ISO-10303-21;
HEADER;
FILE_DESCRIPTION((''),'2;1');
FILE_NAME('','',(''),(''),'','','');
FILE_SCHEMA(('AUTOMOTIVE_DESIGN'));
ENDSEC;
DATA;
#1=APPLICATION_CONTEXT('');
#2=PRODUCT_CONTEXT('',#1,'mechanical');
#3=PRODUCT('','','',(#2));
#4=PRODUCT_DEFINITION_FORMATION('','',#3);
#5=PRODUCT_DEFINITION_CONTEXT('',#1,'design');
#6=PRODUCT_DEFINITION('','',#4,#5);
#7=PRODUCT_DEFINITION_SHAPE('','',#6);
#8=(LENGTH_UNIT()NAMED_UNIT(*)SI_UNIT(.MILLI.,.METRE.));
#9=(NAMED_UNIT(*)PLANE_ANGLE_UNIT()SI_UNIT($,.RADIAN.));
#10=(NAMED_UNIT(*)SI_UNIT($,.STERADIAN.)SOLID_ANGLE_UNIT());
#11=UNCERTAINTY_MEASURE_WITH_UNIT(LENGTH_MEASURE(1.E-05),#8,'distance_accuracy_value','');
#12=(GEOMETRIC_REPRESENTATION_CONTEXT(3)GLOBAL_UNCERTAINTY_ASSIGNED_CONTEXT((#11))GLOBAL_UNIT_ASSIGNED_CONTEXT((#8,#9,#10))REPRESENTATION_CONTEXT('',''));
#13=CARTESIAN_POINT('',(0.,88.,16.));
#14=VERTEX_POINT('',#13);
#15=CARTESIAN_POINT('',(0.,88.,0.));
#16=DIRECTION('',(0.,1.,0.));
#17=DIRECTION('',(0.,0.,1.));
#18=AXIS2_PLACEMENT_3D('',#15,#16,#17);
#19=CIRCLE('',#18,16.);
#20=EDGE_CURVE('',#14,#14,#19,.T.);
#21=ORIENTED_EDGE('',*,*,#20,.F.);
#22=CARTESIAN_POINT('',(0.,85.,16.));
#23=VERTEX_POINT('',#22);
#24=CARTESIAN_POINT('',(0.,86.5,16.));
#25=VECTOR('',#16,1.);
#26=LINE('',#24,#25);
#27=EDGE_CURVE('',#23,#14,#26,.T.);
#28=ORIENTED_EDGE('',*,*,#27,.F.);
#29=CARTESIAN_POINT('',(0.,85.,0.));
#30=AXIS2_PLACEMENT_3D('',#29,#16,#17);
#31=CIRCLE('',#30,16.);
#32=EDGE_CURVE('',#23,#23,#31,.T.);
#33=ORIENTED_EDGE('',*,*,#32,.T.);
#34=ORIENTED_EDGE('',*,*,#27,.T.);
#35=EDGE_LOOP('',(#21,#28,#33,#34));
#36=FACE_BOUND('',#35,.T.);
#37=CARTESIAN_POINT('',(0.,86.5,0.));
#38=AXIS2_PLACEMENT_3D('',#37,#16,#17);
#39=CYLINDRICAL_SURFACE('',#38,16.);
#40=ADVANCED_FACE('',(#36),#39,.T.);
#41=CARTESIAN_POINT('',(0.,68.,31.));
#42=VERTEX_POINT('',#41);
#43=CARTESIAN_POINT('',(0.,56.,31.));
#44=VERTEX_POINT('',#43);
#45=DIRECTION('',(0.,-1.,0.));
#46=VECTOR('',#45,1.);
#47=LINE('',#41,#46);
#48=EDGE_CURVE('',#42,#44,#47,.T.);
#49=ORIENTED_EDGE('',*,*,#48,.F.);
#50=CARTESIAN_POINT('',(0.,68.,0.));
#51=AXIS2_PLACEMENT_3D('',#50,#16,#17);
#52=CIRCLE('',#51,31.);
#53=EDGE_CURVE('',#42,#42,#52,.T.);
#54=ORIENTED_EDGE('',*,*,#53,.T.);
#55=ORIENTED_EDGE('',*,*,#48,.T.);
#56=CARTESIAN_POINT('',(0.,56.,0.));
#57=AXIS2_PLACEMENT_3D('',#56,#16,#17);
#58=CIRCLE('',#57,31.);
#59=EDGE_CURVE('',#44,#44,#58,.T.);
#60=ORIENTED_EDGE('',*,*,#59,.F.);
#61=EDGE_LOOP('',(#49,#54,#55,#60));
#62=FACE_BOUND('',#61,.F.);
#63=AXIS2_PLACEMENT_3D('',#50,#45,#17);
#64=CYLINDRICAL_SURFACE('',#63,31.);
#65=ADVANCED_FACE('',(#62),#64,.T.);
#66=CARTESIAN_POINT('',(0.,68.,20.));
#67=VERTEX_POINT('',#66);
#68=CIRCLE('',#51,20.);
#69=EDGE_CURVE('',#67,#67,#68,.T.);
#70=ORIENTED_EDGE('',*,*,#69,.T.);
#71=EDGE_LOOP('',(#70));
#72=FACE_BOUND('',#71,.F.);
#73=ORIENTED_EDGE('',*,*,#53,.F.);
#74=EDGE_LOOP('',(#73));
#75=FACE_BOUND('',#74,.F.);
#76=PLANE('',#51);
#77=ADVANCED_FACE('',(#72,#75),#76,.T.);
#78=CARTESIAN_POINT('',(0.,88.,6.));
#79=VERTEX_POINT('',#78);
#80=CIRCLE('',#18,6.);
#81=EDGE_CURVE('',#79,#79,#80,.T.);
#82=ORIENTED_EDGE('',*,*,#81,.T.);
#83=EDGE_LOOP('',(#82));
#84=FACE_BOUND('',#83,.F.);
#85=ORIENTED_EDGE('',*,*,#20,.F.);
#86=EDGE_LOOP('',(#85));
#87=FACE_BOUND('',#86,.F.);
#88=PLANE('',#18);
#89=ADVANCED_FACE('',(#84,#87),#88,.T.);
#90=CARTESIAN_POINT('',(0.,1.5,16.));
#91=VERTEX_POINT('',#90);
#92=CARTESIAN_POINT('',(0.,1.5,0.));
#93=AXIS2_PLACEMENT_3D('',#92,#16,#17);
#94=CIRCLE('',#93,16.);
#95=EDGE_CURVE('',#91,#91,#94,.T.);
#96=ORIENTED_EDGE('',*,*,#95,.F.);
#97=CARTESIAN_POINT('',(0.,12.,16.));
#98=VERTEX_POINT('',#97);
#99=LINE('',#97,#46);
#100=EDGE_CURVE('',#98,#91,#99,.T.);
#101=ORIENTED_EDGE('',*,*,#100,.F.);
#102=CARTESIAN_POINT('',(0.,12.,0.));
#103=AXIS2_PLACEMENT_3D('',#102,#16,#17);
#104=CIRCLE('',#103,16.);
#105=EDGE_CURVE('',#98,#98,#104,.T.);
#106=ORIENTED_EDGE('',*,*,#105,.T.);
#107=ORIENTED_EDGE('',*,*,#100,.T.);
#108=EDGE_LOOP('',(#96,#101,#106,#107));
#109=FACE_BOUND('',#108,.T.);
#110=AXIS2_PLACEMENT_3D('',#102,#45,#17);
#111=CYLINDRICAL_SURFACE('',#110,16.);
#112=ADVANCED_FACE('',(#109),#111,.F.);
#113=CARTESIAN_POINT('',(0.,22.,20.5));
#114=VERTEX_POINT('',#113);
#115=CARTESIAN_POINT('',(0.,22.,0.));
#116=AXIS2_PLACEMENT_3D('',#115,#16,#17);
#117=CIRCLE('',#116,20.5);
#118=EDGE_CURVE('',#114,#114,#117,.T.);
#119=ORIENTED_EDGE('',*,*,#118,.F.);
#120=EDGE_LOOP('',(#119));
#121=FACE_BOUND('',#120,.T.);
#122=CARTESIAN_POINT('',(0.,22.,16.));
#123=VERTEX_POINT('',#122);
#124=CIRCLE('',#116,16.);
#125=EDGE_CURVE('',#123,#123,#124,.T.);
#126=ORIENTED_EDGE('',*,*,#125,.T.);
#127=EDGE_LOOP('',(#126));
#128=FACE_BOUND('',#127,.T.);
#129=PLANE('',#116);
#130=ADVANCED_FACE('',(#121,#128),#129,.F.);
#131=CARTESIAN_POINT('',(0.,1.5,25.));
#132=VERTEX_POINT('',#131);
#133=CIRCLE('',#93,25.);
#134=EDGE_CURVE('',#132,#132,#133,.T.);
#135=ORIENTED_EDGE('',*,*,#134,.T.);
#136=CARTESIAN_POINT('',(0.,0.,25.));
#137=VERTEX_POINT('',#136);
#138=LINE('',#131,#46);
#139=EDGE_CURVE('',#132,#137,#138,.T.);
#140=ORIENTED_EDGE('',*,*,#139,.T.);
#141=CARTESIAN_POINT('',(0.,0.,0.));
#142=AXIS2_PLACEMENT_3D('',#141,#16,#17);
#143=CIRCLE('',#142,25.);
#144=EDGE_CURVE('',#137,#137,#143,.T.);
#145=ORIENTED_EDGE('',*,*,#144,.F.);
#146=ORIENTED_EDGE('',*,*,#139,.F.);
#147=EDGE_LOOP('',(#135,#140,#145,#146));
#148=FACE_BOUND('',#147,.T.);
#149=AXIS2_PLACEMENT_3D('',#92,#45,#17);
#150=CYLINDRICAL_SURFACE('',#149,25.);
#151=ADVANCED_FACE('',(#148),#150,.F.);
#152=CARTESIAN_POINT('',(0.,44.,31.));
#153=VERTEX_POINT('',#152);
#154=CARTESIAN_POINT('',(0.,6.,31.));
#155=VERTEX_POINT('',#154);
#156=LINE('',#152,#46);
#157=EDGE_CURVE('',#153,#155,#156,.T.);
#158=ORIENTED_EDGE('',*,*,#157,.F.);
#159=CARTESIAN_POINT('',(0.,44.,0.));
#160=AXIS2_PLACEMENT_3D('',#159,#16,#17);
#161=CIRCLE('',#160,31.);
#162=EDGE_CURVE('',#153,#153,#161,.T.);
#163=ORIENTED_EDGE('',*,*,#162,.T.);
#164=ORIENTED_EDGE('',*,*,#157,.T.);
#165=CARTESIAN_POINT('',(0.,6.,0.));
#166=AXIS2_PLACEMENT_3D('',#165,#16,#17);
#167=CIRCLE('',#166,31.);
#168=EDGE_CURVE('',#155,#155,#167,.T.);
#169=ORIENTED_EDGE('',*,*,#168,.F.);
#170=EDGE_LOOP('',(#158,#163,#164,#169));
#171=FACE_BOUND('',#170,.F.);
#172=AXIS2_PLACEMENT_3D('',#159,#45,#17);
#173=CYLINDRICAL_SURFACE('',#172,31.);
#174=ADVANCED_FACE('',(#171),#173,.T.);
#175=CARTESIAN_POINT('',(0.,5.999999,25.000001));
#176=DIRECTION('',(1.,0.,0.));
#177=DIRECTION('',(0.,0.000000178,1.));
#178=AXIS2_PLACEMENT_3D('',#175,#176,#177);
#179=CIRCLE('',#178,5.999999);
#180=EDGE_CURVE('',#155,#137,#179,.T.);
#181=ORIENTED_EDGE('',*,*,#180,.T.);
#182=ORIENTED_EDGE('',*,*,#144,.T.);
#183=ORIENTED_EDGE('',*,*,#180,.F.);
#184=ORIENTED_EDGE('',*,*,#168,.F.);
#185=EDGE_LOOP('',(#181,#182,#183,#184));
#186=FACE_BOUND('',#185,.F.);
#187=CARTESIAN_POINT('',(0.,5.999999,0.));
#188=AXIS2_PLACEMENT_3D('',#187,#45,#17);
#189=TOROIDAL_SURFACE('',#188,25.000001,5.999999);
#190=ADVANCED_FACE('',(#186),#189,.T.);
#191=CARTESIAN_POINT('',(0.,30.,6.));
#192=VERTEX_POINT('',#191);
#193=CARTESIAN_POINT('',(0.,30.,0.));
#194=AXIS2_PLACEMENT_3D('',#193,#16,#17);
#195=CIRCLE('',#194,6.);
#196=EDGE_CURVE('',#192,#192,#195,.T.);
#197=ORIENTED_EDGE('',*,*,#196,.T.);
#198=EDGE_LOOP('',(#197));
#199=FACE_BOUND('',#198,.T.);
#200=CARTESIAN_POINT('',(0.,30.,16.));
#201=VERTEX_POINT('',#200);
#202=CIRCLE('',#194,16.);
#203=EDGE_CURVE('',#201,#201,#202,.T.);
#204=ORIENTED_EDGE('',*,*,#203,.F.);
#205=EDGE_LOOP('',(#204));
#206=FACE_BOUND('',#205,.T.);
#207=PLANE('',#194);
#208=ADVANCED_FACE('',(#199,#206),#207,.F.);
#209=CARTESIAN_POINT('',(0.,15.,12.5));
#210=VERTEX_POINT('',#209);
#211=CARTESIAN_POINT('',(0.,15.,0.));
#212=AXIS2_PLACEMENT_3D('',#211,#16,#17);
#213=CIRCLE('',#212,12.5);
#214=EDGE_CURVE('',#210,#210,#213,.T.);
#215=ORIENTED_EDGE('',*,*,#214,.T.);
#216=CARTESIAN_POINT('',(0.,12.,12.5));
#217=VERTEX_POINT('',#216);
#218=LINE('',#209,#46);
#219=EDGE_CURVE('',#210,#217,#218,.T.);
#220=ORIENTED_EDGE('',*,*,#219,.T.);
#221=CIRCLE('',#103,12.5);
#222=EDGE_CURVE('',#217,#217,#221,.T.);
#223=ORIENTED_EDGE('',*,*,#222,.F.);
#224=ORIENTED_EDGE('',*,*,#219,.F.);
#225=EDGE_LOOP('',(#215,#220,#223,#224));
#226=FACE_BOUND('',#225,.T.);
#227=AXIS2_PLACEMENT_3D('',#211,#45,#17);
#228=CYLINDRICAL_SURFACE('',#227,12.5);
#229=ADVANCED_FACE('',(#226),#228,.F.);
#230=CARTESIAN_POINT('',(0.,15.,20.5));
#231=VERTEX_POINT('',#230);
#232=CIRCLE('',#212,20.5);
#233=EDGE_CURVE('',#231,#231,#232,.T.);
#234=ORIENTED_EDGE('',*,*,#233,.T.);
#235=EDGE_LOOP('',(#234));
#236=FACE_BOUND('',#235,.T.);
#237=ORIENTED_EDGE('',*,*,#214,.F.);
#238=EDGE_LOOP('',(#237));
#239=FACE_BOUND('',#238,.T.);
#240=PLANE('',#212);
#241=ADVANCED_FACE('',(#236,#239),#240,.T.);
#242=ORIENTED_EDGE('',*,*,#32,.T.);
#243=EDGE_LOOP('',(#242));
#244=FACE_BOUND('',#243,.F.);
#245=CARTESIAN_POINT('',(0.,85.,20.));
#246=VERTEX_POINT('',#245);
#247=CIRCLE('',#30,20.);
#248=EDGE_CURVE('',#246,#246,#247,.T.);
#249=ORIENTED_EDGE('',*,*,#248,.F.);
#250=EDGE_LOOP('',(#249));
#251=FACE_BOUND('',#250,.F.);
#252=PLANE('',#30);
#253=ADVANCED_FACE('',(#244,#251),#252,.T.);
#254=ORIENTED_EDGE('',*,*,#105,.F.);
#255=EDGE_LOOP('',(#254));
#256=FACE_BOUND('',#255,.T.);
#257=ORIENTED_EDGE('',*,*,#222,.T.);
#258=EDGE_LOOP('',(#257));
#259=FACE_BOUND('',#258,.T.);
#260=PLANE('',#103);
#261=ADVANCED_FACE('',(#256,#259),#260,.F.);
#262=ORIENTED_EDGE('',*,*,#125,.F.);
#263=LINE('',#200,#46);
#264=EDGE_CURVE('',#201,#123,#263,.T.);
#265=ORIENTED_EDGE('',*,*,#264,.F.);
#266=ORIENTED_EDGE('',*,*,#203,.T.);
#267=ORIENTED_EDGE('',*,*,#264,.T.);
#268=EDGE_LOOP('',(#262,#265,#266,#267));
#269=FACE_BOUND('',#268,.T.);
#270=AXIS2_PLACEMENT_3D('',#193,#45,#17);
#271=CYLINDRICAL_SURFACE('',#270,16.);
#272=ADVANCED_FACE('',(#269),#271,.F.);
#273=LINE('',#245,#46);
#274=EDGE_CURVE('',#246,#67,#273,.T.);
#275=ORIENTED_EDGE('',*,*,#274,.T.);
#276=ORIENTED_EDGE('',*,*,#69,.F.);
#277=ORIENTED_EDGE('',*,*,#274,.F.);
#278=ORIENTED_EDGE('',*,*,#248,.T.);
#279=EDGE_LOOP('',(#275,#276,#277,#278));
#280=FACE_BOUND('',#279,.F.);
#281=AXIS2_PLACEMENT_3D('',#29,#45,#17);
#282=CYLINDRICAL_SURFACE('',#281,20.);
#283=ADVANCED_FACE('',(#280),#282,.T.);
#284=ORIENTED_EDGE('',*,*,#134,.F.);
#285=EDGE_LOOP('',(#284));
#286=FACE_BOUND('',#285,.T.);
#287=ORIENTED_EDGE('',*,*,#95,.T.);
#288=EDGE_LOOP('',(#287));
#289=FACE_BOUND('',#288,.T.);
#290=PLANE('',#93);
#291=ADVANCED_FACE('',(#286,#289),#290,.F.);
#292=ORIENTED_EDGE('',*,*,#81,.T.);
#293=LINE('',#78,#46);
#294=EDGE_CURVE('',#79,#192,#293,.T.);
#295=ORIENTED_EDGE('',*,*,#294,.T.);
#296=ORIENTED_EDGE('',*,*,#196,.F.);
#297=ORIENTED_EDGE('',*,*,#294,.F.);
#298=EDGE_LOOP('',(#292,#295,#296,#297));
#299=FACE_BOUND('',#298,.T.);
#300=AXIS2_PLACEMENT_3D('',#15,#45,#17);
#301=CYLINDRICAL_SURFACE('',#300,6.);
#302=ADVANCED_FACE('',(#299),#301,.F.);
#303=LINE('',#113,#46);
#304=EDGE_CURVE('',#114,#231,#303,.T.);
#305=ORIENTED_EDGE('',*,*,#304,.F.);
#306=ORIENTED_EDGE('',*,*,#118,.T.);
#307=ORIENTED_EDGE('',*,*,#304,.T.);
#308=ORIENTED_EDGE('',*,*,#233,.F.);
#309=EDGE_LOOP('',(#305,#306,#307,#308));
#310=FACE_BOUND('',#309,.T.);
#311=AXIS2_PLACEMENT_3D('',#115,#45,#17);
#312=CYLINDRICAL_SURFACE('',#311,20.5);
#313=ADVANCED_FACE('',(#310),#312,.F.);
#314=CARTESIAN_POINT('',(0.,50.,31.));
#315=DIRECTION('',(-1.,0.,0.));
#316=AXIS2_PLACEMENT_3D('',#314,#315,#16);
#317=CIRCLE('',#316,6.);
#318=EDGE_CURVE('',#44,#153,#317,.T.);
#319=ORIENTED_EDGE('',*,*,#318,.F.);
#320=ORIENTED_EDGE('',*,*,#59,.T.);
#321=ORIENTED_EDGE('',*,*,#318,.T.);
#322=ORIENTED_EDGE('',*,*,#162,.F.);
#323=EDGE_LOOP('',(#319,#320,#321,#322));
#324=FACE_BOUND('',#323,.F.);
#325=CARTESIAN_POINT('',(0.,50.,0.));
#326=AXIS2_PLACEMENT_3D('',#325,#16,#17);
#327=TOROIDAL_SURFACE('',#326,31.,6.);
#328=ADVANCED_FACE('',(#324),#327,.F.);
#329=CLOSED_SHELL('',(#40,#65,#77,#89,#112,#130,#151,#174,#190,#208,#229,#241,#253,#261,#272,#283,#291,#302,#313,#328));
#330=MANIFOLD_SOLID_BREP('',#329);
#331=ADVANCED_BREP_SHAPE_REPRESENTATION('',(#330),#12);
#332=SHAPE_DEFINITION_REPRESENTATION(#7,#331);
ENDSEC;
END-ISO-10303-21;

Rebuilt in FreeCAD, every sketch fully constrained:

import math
import FreeCAD as App
import Part
import Sketcher
from FreeCAD import Vector
Q = App.Units.Quantity

doc = App.newDocument("Part")
body = doc.addObject("PartDesign::Body", "Body")

# Sketch on YZ plane
sketch1 = body.newObject("Sketcher::SketchObject", "Sketch")
sketch1.AttachmentSupport = (doc.getObject("YZ_Plane"), [""])
sketch1.MapMode = "FlatFace"
sketch1.addGeometry(Part.LineSegment(Vector(0, 25, 0), Vector(0, 0, 0)), False)
sketch1.addGeometry(Part.LineSegment(Vector(0, 0, 0), Vector(88, 0, 0)), False)
sketch1.addGeometry(Part.LineSegment(Vector(88, 0, 0), Vector(88, 16, 0)), False)
sketch1.addGeometry(Part.LineSegment(Vector(88, 16, 0), Vector(85, 16, 0)), False)
sketch1.addGeometry(Part.LineSegment(Vector(85, 16, 0), Vector(85, 20, 0)), False)
sketch1.addGeometry(Part.LineSegment(Vector(85, 20, 0), Vector(68, 20, 0)), False)
sketch1.addGeometry(Part.LineSegment(Vector(68, 20, 0), Vector(68, 31, 0)), False)
sketch1.addGeometry(Part.LineSegment(Vector(68, 31, 0), Vector(56, 31, 0)), False)
sketch1.addGeometry(Part.ArcOfCircle(Part.Circle(Vector(50, 31, 0), Vector(0, 0, 1), 6), math.radians(180), math.radians(360)), False)
sketch1.addGeometry(Part.LineSegment(Vector(44, 31, 0), Vector(6, 31, 0)), False)
sketch1.addGeometry(Part.ArcOfCircle(Part.Circle(Vector(5.999999, 25.000001, 0), Vector(0, 0, 1), 5.999999), math.radians(89.99999), math.radians(180.00001)), False)
sketch1.addConstraint(Sketcher.Constraint("Coincident", 0, 2, 1, 1))
sketch1.addConstraint(Sketcher.Constraint("Coincident", 1, 2, 2, 1))
sketch1.addConstraint(Sketcher.Constraint("Coincident", 2, 2, 3, 1))
sketch1.addConstraint(Sketcher.Constraint("Coincident", 3, 2, 4, 1))
sketch1.addConstraint(Sketcher.Constraint("Coincident", 4, 2, 5, 1))
sketch1.addConstraint(Sketcher.Constraint("Coincident", 5, 2, 6, 1))
sketch1.addConstraint(Sketcher.Constraint("Coincident", 6, 2, 7, 1))
sketch1.addConstraint(Sketcher.Constraint("Coincident", 7, 2, 8, 2))
sketch1.addConstraint(Sketcher.Constraint("Coincident", 8, 1, 9, 1))
sketch1.addConstraint(Sketcher.Constraint("Tangent", 9, 2, 10, 1))
sketch1.addConstraint(Sketcher.Constraint("Tangent", 10, 2, 0, 1))
sketch1.addConstraint(Sketcher.Constraint("Vertical", 0))
sketch1.addConstraint(Sketcher.Constraint("Horizontal", 1))
sketch1.addConstraint(Sketcher.Constraint("Vertical", 2))
sketch1.addConstraint(Sketcher.Constraint("Horizontal", 3))
sketch1.addConstraint(Sketcher.Constraint("Vertical", 4))
sketch1.addConstraint(Sketcher.Constraint("Horizontal", 5))
sketch1.addConstraint(Sketcher.Constraint("Vertical", 6))
sketch1.addConstraint(Sketcher.Constraint("Horizontal", 7))
sketch1.addConstraint(Sketcher.Constraint("Horizontal", 9))
sketch1.addConstraint(Sketcher.Constraint("Coincident", 0, 2, -1, 1))
sketch1.addConstraint(Sketcher.Constraint("Equal", 8, 10))
sketch1.addConstraint(Sketcher.Constraint("Horizontal", 8, 3, 6, 2))
sketch1.addConstraint(Sketcher.Constraint("Horizontal", 7, 2, 8, 1))
sketch1.addConstraint(Sketcher.Constraint("Radius", 8, Q("6 mm")))
sketch1.addConstraint(Sketcher.Constraint("DistanceX", 1, 1, 1, 2, Q("88 mm")))
sketch1.addConstraint(Sketcher.Constraint("DistanceX", 3, 2, 3, 1, Q("3 mm")))
sketch1.addConstraint(Sketcher.Constraint("DistanceX", 5, 2, 5, 1, Q("17 mm")))
sketch1.addConstraint(Sketcher.Constraint("DistanceX", 7, 2, 7, 1, Q("12 mm")))
sketch1.addConstraint(Sketcher.Constraint("DistanceY", 0, 2, 0, 1, Q("25 mm")))
sketch1.addConstraint(Sketcher.Constraint("DistanceY", 2, 1, 2, 2, Q("16 mm")))
sketch1.addConstraint(Sketcher.Constraint("DistanceY", 4, 1, 4, 2, Q("4 mm")))
revolution = body.newObject("PartDesign::Revolution", "Revolution")
revolution.Profile = sketch1
revolution.ReferenceAxis = (sketch1, ["H_Axis"])
revolution.Angle = 360

# Sketch on YZ plane
sketch2 = body.newObject("Sketcher::SketchObject", "Sketch001")
sketch2.AttachmentSupport = (doc.getObject("YZ_Plane"), [""])
sketch2.MapMode = "FlatFace"
sketch2.addGeometry(Part.LineSegment(Vector(0, 25, 0), Vector(0, 0, 0)), False)
sketch2.addGeometry(Part.LineSegment(Vector(0, 0, 0), Vector(88, 0, 0)), False)
sketch2.addGeometry(Part.LineSegment(Vector(88, 0, 0), Vector(88, 6, 0)), False)
sketch2.addGeometry(Part.LineSegment(Vector(88, 6, 0), Vector(30, 6, 0)), False)
sketch2.addGeometry(Part.LineSegment(Vector(30, 6, 0), Vector(30, 16, 0)), False)
sketch2.addGeometry(Part.LineSegment(Vector(30, 16, 0), Vector(22, 16, 0)), False)
sketch2.addGeometry(Part.LineSegment(Vector(22, 16, 0), Vector(22, 20.5, 0)), False)
sketch2.addGeometry(Part.LineSegment(Vector(22, 20.5, 0), Vector(15, 20.5, 0)), False)
sketch2.addGeometry(Part.LineSegment(Vector(15, 20.5, 0), Vector(15, 12.5, 0)), False)
sketch2.addGeometry(Part.LineSegment(Vector(15, 12.5, 0), Vector(12, 12.5, 0)), False)
sketch2.addGeometry(Part.LineSegment(Vector(12, 12.5, 0), Vector(12, 16, 0)), False)
sketch2.addGeometry(Part.LineSegment(Vector(12, 16, 0), Vector(1.5, 16, 0)), False)
sketch2.addGeometry(Part.LineSegment(Vector(1.5, 16, 0), Vector(1.5, 25, 0)), False)
sketch2.addGeometry(Part.LineSegment(Vector(1.5, 25, 0), Vector(0, 25, 0)), False)
sketch2.addConstraint(Sketcher.Constraint("Coincident", 0, 2, 1, 1))
sketch2.addConstraint(Sketcher.Constraint("Coincident", 1, 2, 2, 1))
sketch2.addConstraint(Sketcher.Constraint("Coincident", 2, 2, 3, 1))
sketch2.addConstraint(Sketcher.Constraint("Coincident", 3, 2, 4, 1))
sketch2.addConstraint(Sketcher.Constraint("Coincident", 4, 2, 5, 1))
sketch2.addConstraint(Sketcher.Constraint("Coincident", 5, 2, 6, 1))
sketch2.addConstraint(Sketcher.Constraint("Coincident", 6, 2, 7, 1))
sketch2.addConstraint(Sketcher.Constraint("Coincident", 7, 2, 8, 1))
sketch2.addConstraint(Sketcher.Constraint("Coincident", 8, 2, 9, 1))
sketch2.addConstraint(Sketcher.Constraint("Coincident", 9, 2, 10, 1))
sketch2.addConstraint(Sketcher.Constraint("Coincident", 10, 2, 11, 1))
sketch2.addConstraint(Sketcher.Constraint("Coincident", 11, 2, 12, 1))
sketch2.addConstraint(Sketcher.Constraint("Coincident", 12, 2, 13, 1))
sketch2.addConstraint(Sketcher.Constraint("Coincident", 13, 2, 0, 1))
sketch2.addConstraint(Sketcher.Constraint("Vertical", 0))
sketch2.addConstraint(Sketcher.Constraint("Horizontal", 1))
sketch2.addConstraint(Sketcher.Constraint("Vertical", 2))
sketch2.addConstraint(Sketcher.Constraint("Horizontal", 3))
sketch2.addConstraint(Sketcher.Constraint("Vertical", 4))
sketch2.addConstraint(Sketcher.Constraint("Horizontal", 5))
sketch2.addConstraint(Sketcher.Constraint("Vertical", 6))
sketch2.addConstraint(Sketcher.Constraint("Horizontal", 7))
sketch2.addConstraint(Sketcher.Constraint("Vertical", 8))
sketch2.addConstraint(Sketcher.Constraint("Horizontal", 9))
sketch2.addConstraint(Sketcher.Constraint("Vertical", 10))
sketch2.addConstraint(Sketcher.Constraint("Horizontal", 11))
sketch2.addConstraint(Sketcher.Constraint("Vertical", 12))
sketch2.addConstraint(Sketcher.Constraint("Horizontal", 13))
sketch2.addConstraint(Sketcher.Constraint("Coincident", 0, 2, -1, 1))
sketch2.addConstraint(Sketcher.Constraint("Horizontal", 5, 2, 10, 2))
sketch2.addConstraint(Sketcher.Constraint("Equal", 5, 8))
sketch2.addConstraint(Sketcher.Constraint("DistanceX", 1, 1, 1, 2, Q("88 mm")))
sketch2.addConstraint(Sketcher.Constraint("DistanceX", 3, 2, 3, 1, Q("58 mm")))
sketch2.addConstraint(Sketcher.Constraint("DistanceX", 5, 2, 5, 1, Q("8 mm")))
sketch2.addConstraint(Sketcher.Constraint("DistanceX", 7, 2, 7, 1, Q("7 mm")))
sketch2.addConstraint(Sketcher.Constraint("DistanceX", 9, 2, 9, 1, Q("3 mm")))
sketch2.addConstraint(Sketcher.Constraint("DistanceY", 0, 2, 0, 1, Q("25 mm")))
sketch2.addConstraint(Sketcher.Constraint("DistanceY", 2, 1, 2, 2, Q("6 mm")))
sketch2.addConstraint(Sketcher.Constraint("DistanceY", 4, 1, 4, 2, Q("10 mm")))
sketch2.addConstraint(Sketcher.Constraint("DistanceX", 11, 2, 11, 1, Q("10.5 mm")))
sketch2.addConstraint(Sketcher.Constraint("DistanceY", 6, 1, 6, 2, Q("4.5 mm")))
groove = body.newObject("PartDesign::Groove", "Groove")
groove.Profile = sketch2
groove.ReferenceAxis = (sketch2, ["H_Axis"])
groove.Angle = 360

doc.recompute()
